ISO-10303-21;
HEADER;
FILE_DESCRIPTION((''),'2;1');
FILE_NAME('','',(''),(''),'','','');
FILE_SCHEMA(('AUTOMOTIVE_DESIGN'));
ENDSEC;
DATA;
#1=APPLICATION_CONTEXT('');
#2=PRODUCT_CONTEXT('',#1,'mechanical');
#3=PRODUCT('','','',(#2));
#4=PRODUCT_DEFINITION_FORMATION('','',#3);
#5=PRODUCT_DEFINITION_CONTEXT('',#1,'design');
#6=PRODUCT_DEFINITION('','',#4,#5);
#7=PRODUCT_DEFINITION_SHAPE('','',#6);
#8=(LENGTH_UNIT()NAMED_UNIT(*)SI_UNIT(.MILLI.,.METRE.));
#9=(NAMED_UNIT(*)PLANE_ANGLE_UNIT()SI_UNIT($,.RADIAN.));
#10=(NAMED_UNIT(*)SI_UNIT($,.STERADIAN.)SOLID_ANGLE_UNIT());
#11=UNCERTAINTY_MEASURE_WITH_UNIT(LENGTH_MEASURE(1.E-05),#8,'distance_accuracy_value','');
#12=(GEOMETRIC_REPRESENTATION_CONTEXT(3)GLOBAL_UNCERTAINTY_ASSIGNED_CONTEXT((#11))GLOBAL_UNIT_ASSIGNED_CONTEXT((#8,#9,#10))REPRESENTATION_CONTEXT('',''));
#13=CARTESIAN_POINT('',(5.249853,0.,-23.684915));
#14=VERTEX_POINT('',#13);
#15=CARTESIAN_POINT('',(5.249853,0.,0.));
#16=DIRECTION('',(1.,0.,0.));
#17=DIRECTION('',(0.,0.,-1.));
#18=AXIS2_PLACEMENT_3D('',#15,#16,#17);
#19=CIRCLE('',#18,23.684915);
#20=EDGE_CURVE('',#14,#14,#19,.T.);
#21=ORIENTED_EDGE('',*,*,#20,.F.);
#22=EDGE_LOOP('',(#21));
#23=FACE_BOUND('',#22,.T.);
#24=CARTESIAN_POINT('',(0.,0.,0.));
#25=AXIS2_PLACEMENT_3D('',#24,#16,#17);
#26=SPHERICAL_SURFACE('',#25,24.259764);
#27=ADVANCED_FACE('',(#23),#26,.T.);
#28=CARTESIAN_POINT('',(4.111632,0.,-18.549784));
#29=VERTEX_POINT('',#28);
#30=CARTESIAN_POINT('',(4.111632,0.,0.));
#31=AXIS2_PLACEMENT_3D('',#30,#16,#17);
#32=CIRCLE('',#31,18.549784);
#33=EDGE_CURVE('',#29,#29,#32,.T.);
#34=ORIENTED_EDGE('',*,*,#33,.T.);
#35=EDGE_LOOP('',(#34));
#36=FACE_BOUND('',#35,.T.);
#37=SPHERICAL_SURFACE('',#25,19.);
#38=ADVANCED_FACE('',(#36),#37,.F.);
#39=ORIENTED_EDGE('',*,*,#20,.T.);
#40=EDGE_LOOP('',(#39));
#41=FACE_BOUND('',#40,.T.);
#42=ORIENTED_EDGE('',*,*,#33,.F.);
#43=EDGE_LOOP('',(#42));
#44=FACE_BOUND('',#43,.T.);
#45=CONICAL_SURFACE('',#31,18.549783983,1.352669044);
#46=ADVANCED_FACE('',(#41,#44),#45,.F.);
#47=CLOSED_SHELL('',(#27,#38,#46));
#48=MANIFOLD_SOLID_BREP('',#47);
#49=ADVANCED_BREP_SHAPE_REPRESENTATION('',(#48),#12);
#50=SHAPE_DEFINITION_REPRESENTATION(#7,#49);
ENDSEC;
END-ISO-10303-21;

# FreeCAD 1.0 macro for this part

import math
import FreeCAD as App
import Part
import Sketcher
from FreeCAD import Vector

doc = App.newDocument("Part")
params = doc.addObject("Spreadsheet::Sheet", "Params")
for row, (alias, value) in enumerate([
    ("sketch1_radius", "19 mm"),
    ("revolution_angle", "360 deg"),
], start=1):
    params.set(f"A{row}", alias)
    params.set(f"B{row}", "=" + value)
    params.setAlias(f"B{row}", alias)

body = doc.addObject("PartDesign::Body", "Body")

sketch1 = body.newObject("Sketcher::SketchObject", "Sketch")
sketch1.AttachmentSupport = (doc.getObject("XZ_Plane"), [""])
sketch1.MapMode = "FlatFace"
sketch1.addGeometry([
    Part.LineSegment(Vector(-24, 0, 0), Vector(-19, 0, 0)),
    Part.ArcOfCircle(Part.Circle(Vector(0, 0, 0), Vector(0, 0, 1), 19), math.radians(180), math.radians(282)),
    Part.LineSegment(Vector(4, -19, 0), Vector(5, -24, 0)),
    Part.ArcOfCircle(Part.Circle(Vector(0, 0, 0), Vector(0, 0, 1), 24), math.radians(180), math.radians(282)),
], False)
sketch1.addConstraint([
    Sketcher.Constraint("Coincident", 0, 2, 1, 1),
    Sketcher.Constraint("Coincident", 1, 2, 2, 1),
    Sketcher.Constraint("Coincident", 2, 2, 3, 2),
    Sketcher.Constraint("Coincident", 3, 1, 0, 1),
    Sketcher.Constraint("Horizontal", 0),
    Sketcher.Constraint("Coincident", 1, 3, -1, 1),
    Sketcher.Constraint("Coincident", 3, 3, -1, 1),
    Sketcher.Constraint("PointOnObject", 0, 2, -1),
    Sketcher.Constraint("Radius", 1, 19.0),
    Sketcher.Constraint("Radius", 3, 24.259764),
    Sketcher.Constraint("DistanceX", -1, 1, 1, 2, 4.111632),
    Sketcher.Constraint("DistanceX", 1, 2, 2, 2, 1.138222),
])
sketch1.setExpression("Constraints[8]", "Params.sketch1_radius")
revolution = body.newObject("PartDesign::Revolution", "Revolution")
revolution.Profile = sketch1
revolution.ReferenceAxis = (sketch1, ["H_Axis"])
revolution.setExpression("Angle", "Params.revolution_angle")

doc.recompute()
